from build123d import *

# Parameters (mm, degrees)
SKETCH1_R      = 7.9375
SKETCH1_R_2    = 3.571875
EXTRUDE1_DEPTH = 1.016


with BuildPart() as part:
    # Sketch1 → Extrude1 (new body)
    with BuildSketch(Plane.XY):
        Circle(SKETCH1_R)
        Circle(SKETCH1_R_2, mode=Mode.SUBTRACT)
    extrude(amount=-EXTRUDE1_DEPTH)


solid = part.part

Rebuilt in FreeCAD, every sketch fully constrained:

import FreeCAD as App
import Part
import Sketcher
Q = App.Units.Quantity

doc = App.newDocument("Part")
body = doc.addObject("PartDesign::Body", "Body")

# Sketch on XY plane
sketch1 = body.newObject("Sketcher::SketchObject", "Sketch")
sketch1.AttachmentSupport = (doc.getObject("XY_Plane"), [""])
sketch1.MapMode = "FlatFace"
sketch1.addGeometry([
    Part.Circle(App.Vector(0, 0, 0), App.Vector(0, 0, 1), 7.9),
    Part.Circle(App.Vector(0, 0, 0), App.Vector(0, 0, 1), 3.6),
], False)
sketch1.addConstraint([
    Sketcher.Constraint("Coincident", 0, 3, -1, 1),
    Sketcher.Constraint("Coincident", 1, 3, -1, 1),
    Sketcher.Constraint("Diameter", 0, Q("0.625 in")),
    Sketcher.Constraint("Diameter", 1, Q("0.28125 in")),
])
pad1 = body.newObject("PartDesign::Pad", "Pad")
pad1.Profile = sketch1
pad1.Length = Q("0.04 in")
pad1.Reversed = True

doc.recompute()
